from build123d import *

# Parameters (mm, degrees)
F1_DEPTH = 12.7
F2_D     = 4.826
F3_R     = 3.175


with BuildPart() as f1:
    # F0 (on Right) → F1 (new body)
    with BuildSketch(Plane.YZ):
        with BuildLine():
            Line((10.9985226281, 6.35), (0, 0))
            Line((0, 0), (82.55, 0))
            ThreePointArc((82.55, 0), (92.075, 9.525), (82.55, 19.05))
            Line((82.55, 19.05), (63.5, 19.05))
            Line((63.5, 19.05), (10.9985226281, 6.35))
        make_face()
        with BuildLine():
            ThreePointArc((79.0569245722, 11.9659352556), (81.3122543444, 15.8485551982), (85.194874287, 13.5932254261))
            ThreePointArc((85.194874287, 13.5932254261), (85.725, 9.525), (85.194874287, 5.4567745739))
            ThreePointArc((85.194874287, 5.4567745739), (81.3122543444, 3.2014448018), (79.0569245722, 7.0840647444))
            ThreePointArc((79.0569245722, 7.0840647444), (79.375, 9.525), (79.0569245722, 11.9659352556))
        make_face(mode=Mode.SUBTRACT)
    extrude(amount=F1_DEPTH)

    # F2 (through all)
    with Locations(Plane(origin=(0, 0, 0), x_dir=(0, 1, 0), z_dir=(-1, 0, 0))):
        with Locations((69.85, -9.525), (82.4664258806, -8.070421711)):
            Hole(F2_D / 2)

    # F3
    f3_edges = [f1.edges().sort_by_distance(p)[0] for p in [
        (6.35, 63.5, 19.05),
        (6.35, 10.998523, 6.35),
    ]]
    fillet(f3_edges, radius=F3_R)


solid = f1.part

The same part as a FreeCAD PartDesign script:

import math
import FreeCAD as App
import Part
import Sketcher
from FreeCAD import Vector
Q = App.Units.Quantity


def edges_at(feature, points):
    """Names of the edges that pass closest to the given points."""
    edges = feature.Shape.Edges
    near = lambda p: min(range(len(edges)), key=lambda i: edges[i].distToShape(Part.Vertex(*p))[0])
    return sorted({f"Edge{near(p) + 1}" for p in points})

doc = App.newDocument("Part")
body = doc.addObject("PartDesign::Body", "Body")

# Sketch on YZ plane
sketch1 = body.newObject("Sketcher::SketchObject", "Sketch")
sketch1.AttachmentSupport = (doc.getObject("YZ_Plane"), [""])
sketch1.MapMode = "FlatFace"
sketch1.addGeometry([
    Part.LineSegment(Vector(11, 6.3, 0), Vector(0, 0, 0)),  # 0
    Part.LineSegment(Vector(0, 0, 0), Vector(82.5, 0, 0)),  # 1
    Part.ArcOfCircle(Part.Circle(Vector(82.5, 9.5, 0), Vector(0, 0, 1), 9.5), math.radians(-90), math.radians(90)),  # 2
    Part.LineSegment(Vector(82.5, 19.1, 0), Vector(63.5, 19.1, 0)),  # 3
    Part.LineSegment(Vector(63.5, 19.1, 0), Vector(11, 6.3, 0)),  # 4
    Part.ArcOfCircle(Part.Circle(Vector(69.8, 9.5, 0), Vector(0, 0, 1), 9.5), math.radians(-15), math.radians(15)),  # 5
    Part.ArcOfCircle(Part.Circle(Vector(82.1, 12.8, 0), Vector(0, 0, 1), 3.2), math.radians(15), math.radians(195)),  # 6
    Part.ArcOfCircle(Part.Circle(Vector(69.8, 9.5, 0), Vector(0, 0, 1), 15.9), math.radians(-15), math.radians(15)),  # 7
    Part.ArcOfCircle(Part.Circle(Vector(82.1, 6.3, 0), Vector(0, 0, 1), 3.2), math.radians(165), math.radians(345)),  # 8
], False)
sketch1.addConstraint([
    Sketcher.Constraint("Coincident", 0, 2, 1, 1),
    Sketcher.Constraint("Tangent", 1, 2, 2, 1),
    Sketcher.Constraint("Tangent", 2, 2, 3, 1),
    Sketcher.Constraint("Coincident", 3, 2, 4, 1),
    Sketcher.Constraint("Coincident", 4, 2, 0, 1),
    Sketcher.Constraint("Tangent", 5, 2, 6, 2),
    Sketcher.Constraint("Tangent", 6, 1, 7, 2),
    Sketcher.Constraint("Tangent", 7, 1, 8, 2),
    Sketcher.Constraint("Tangent", 8, 1, 5, 1),
    Sketcher.Constraint("Horizontal", 1),
    Sketcher.Constraint("Horizontal", 3),
    Sketcher.Constraint("Coincident", 0, 2, -1, 1),
    Sketcher.Constraint("Coincident", 7, 3, 5, 3),
    Sketcher.Constraint("Equal", 2, 5),
    Sketcher.Constraint("Horizontal", 2, 3, 5, 3),
    Sketcher.Constraint("Vertical", 6, 3, 8, 3),
    Sketcher.Constraint("Angle", 0, Q("-150 deg")),
    Sketcher.Constraint("Radius", 2, Q("0.375 in")),
    Sketcher.Constraint("Radius", 6, Q("0.125 in")),
    Sketcher.Constraint("Distance", 0, Q("0.5 in")),
    Sketcher.Constraint("DistanceX", 1, 1, 1, 2, Q("3.25 in")),
    Sketcher.Constraint("DistanceX", 3, 2, 3, 1, Q("0.75 in")),
    Sketcher.Constraint("DistanceX", 5, 3, 2, 3, Q("0.5 in")),
    Sketcher.Constraint("DistanceY", -1, 1, 5, 2, Q("0.4710998 in")),
])
pad1 = body.newObject("PartDesign::Pad", "Pad")
pad1.Profile = sketch1
pad1.Length = Q("0.5 in")

# Sketch on YZ plane
sketch2 = body.newObject("Sketcher::SketchObject", "Sketch001")
sketch2.AttachmentSupport = (doc.getObject("YZ_Plane"), [""])
sketch2.MapMode = "FlatFace"
sketch2.addGeometry([
    Part.Circle(Vector(69.8, 9.5, 0), Vector(0, 0, 1), 2.4),
    Part.Circle(Vector(82.5, 8.1, 0), Vector(0, 0, 1), 2.4),
], False)
sketch2.addConstraint([
    Sketcher.Constraint("Equal", 0, 1),
    Sketcher.Constraint("Diameter", 0, Q("0.19 in")),
    Sketcher.Constraint("DistanceX", -1, 1, 0, 3, Q("2.75 in")),
    Sketcher.Constraint("DistanceY", -1, 1, 0, 3, Q("0.375 in")),
    Sketcher.Constraint("DistanceY", -1, 1, 1, 3, 8.070422),
    Sketcher.Constraint("DistanceX", -1, 1, 1, 3, 82.466426),
])
doc.recompute()
hole = body.newObject("PartDesign::Hole", "Hole")
hole.Profile = sketch2
hole.ThreadType = "None"
hole.Diameter = Q("0.19 in")
hole.DepthType = "ThroughAll"
hole.Reversed = True
doc.recompute()

fillet = body.newObject("PartDesign::Fillet", "Fillet")
fillet.Base = (hole, edges_at(hole, [(6.35, 63.5, 19.05), (6.35, 10.999, 6.35)]))
fillet.Radius = Q("0.125 in")

doc.recompute()
